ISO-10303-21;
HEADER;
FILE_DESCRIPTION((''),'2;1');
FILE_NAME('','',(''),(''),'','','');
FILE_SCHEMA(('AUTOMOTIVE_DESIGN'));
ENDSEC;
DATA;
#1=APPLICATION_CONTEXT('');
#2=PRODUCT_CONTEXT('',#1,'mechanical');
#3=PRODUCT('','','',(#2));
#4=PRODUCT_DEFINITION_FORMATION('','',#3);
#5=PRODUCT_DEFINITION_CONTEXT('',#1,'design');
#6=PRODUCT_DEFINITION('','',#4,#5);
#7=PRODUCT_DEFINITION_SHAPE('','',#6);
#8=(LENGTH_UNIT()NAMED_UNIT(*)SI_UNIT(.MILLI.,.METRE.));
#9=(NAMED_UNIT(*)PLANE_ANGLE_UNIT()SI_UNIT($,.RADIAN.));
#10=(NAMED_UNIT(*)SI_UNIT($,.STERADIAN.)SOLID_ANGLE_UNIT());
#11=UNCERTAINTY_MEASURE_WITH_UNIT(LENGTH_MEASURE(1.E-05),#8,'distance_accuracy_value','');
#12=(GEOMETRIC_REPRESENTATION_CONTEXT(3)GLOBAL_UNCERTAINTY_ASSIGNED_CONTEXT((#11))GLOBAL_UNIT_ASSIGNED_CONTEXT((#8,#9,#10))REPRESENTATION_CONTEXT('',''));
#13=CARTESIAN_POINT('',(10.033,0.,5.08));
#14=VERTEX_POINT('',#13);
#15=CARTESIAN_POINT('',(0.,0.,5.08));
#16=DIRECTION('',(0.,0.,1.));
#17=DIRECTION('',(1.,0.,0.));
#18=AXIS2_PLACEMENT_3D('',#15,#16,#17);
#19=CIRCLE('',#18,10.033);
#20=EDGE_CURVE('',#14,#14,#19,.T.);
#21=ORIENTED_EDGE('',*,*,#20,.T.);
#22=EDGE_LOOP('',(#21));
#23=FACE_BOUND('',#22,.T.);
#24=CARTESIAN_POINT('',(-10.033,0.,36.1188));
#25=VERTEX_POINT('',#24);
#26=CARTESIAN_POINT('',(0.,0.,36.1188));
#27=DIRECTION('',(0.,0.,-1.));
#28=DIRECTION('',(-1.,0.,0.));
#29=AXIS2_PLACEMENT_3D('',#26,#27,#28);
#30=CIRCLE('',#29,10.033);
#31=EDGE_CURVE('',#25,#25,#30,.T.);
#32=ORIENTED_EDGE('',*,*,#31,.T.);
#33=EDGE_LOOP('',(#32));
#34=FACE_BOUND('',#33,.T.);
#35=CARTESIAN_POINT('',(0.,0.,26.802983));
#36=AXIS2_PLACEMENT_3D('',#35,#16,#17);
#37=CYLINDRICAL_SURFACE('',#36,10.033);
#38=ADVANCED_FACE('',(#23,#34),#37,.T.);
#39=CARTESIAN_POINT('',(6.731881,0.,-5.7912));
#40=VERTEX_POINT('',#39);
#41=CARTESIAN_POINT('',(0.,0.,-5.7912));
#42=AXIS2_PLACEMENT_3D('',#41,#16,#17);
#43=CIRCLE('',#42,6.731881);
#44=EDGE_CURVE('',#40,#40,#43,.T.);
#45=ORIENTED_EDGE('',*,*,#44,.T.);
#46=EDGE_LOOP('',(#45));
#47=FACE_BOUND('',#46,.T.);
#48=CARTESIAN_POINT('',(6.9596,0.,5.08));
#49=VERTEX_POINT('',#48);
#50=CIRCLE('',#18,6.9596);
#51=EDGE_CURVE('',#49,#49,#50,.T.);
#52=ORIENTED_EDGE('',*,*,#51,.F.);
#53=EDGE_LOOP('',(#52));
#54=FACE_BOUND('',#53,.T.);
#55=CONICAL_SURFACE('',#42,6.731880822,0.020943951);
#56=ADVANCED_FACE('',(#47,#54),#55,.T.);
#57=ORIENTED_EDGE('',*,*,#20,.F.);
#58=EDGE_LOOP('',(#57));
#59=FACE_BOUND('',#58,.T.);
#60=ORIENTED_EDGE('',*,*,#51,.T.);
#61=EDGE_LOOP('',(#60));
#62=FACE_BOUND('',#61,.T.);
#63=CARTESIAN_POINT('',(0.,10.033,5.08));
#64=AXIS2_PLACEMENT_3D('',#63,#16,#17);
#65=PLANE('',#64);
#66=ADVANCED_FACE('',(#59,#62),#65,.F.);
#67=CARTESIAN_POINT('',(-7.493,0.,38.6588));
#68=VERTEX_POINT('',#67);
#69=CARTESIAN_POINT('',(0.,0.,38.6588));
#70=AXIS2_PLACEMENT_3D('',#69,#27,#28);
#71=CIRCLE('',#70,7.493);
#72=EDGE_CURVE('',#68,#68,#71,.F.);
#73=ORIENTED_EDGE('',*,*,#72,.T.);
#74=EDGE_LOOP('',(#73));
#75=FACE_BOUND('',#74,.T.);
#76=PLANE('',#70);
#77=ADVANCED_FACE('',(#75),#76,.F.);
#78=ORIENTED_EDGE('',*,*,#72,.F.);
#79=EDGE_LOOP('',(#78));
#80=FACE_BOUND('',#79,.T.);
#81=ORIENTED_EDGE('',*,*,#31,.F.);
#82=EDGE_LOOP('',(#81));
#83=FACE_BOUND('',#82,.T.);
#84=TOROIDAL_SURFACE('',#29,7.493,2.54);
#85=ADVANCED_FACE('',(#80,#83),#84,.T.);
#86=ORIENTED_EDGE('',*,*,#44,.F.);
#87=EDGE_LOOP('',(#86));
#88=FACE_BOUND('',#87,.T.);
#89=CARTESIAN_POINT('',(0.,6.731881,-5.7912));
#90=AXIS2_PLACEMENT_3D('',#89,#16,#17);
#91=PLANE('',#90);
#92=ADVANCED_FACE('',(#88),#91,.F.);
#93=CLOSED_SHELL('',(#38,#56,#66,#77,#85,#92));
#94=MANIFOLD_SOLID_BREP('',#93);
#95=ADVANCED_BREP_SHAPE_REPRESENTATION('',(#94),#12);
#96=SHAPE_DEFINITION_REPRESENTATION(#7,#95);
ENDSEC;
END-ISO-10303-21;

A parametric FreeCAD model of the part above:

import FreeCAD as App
import Part
import Sketcher
Q = App.Units.Quantity


def edges_at(feature, points):
    """Names of the edges that pass closest to the given points."""
    edges = feature.Shape.Edges
    near = lambda p: min(range(len(edges)), key=lambda i: edges[i].distToShape(Part.Vertex(*p))[0])
    return sorted({f"Edge{near(p) + 1}" for p in points})

doc = App.newDocument("Part")
body = doc.addObject("PartDesign::Body", "Body")

# Sketch on YZ plane
sketch1 = body.newObject("Sketcher::SketchObject", "Sketch")
sketch1.AttachmentSupport = (doc.getObject("YZ_Plane"), [""])
sketch1.MapMode = "FlatFace"
sketch1.addGeometry(Part.LineSegment(App.Vector(10, 38.7, 0), App.Vector(0, 38.7, 0)), False)
sketch1.addGeometry(Part.LineSegment(App.Vector(0, 38.7, 0), App.Vector(0, -5.8, 0)), False)
sketch1.addGeometry(Part.LineSegment(App.Vector(0, -5.8, 0), App.Vector(6.7, -5.8, 0)), False)
sketch1.addGeometry(Part.LineSegment(App.Vector(6.7, -5.8, 0), App.Vector(7, 5.1, 0)), False)
sketch1.addGeometry(Part.LineSegment(App.Vector(7, 5.1, 0), App.Vector(10, 5.1, 0)), False)
sketch1.addGeometry(Part.LineSegment(App.Vector(10, 5.1, 0), App.Vector(10, 38.7, 0)), False)
sketch1.addConstraint(Sketcher.Constraint("Coincident", 0, 2, 1, 1))
sketch1.addConstraint(Sketcher.Constraint("Coincident", 1, 2, 2, 1))
sketch1.addConstraint(Sketcher.Constraint("Coincident", 2, 2, 3, 1))
sketch1.addConstraint(Sketcher.Constraint("Coincident", 3, 2, 4, 1))
sketch1.addConstraint(Sketcher.Constraint("Coincident", 4, 2, 5, 1))
sketch1.addConstraint(Sketcher.Constraint("Coincident", 5, 2, 0, 1))
sketch1.addConstraint(Sketcher.Constraint("Horizontal", 0))
sketch1.addConstraint(Sketcher.Constraint("Vertical", 1))
sketch1.addConstraint(Sketcher.Constraint("Horizontal", 2))
sketch1.addConstraint(Sketcher.Constraint("Horizontal", 4))
sketch1.addConstraint(Sketcher.Constraint("Vertical", 5))
sketch1.addConstraint(Sketcher.Constraint("PointOnObject", 0, 2, -2))
sketch1.addConstraint(Sketcher.Constraint("DistanceY", 1, 2, 1, 1, Q("1.75 in")))
sketch1.addConstraint(Sketcher.Constraint("DistanceY", -1, 1, 3, 2, Q("0.2 in")))
sketch1.addConstraint(Sketcher.Constraint("Angle", 3, Q("88.8 deg")))
sketch1.addConstraint(Sketcher.Constraint("DistanceX", 0, 2, 0, 1, Q("0.395 in")))
sketch1.addConstraint(Sketcher.Constraint("DistanceX", 4, 1, 4, 2, Q("0.121 in")))
sketch1.addConstraint(Sketcher.Constraint("DistanceY", 5, 1, 5, 2, Q("1.322 in")))
revolution = body.newObject("PartDesign::Revolution", "Revolution")
revolution.Profile = sketch1
revolution.ReferenceAxis = (sketch1, ["V_Axis"])
revolution.Angle = 360
doc.recompute()

fillet = body.newObject("PartDesign::Fillet", "Fillet")
fillet.Base = (revolution, edges_at(revolution, [(-10.033, 0, 38.659)]))
fillet.Radius = Q("0.1 in")

doc.recompute()
